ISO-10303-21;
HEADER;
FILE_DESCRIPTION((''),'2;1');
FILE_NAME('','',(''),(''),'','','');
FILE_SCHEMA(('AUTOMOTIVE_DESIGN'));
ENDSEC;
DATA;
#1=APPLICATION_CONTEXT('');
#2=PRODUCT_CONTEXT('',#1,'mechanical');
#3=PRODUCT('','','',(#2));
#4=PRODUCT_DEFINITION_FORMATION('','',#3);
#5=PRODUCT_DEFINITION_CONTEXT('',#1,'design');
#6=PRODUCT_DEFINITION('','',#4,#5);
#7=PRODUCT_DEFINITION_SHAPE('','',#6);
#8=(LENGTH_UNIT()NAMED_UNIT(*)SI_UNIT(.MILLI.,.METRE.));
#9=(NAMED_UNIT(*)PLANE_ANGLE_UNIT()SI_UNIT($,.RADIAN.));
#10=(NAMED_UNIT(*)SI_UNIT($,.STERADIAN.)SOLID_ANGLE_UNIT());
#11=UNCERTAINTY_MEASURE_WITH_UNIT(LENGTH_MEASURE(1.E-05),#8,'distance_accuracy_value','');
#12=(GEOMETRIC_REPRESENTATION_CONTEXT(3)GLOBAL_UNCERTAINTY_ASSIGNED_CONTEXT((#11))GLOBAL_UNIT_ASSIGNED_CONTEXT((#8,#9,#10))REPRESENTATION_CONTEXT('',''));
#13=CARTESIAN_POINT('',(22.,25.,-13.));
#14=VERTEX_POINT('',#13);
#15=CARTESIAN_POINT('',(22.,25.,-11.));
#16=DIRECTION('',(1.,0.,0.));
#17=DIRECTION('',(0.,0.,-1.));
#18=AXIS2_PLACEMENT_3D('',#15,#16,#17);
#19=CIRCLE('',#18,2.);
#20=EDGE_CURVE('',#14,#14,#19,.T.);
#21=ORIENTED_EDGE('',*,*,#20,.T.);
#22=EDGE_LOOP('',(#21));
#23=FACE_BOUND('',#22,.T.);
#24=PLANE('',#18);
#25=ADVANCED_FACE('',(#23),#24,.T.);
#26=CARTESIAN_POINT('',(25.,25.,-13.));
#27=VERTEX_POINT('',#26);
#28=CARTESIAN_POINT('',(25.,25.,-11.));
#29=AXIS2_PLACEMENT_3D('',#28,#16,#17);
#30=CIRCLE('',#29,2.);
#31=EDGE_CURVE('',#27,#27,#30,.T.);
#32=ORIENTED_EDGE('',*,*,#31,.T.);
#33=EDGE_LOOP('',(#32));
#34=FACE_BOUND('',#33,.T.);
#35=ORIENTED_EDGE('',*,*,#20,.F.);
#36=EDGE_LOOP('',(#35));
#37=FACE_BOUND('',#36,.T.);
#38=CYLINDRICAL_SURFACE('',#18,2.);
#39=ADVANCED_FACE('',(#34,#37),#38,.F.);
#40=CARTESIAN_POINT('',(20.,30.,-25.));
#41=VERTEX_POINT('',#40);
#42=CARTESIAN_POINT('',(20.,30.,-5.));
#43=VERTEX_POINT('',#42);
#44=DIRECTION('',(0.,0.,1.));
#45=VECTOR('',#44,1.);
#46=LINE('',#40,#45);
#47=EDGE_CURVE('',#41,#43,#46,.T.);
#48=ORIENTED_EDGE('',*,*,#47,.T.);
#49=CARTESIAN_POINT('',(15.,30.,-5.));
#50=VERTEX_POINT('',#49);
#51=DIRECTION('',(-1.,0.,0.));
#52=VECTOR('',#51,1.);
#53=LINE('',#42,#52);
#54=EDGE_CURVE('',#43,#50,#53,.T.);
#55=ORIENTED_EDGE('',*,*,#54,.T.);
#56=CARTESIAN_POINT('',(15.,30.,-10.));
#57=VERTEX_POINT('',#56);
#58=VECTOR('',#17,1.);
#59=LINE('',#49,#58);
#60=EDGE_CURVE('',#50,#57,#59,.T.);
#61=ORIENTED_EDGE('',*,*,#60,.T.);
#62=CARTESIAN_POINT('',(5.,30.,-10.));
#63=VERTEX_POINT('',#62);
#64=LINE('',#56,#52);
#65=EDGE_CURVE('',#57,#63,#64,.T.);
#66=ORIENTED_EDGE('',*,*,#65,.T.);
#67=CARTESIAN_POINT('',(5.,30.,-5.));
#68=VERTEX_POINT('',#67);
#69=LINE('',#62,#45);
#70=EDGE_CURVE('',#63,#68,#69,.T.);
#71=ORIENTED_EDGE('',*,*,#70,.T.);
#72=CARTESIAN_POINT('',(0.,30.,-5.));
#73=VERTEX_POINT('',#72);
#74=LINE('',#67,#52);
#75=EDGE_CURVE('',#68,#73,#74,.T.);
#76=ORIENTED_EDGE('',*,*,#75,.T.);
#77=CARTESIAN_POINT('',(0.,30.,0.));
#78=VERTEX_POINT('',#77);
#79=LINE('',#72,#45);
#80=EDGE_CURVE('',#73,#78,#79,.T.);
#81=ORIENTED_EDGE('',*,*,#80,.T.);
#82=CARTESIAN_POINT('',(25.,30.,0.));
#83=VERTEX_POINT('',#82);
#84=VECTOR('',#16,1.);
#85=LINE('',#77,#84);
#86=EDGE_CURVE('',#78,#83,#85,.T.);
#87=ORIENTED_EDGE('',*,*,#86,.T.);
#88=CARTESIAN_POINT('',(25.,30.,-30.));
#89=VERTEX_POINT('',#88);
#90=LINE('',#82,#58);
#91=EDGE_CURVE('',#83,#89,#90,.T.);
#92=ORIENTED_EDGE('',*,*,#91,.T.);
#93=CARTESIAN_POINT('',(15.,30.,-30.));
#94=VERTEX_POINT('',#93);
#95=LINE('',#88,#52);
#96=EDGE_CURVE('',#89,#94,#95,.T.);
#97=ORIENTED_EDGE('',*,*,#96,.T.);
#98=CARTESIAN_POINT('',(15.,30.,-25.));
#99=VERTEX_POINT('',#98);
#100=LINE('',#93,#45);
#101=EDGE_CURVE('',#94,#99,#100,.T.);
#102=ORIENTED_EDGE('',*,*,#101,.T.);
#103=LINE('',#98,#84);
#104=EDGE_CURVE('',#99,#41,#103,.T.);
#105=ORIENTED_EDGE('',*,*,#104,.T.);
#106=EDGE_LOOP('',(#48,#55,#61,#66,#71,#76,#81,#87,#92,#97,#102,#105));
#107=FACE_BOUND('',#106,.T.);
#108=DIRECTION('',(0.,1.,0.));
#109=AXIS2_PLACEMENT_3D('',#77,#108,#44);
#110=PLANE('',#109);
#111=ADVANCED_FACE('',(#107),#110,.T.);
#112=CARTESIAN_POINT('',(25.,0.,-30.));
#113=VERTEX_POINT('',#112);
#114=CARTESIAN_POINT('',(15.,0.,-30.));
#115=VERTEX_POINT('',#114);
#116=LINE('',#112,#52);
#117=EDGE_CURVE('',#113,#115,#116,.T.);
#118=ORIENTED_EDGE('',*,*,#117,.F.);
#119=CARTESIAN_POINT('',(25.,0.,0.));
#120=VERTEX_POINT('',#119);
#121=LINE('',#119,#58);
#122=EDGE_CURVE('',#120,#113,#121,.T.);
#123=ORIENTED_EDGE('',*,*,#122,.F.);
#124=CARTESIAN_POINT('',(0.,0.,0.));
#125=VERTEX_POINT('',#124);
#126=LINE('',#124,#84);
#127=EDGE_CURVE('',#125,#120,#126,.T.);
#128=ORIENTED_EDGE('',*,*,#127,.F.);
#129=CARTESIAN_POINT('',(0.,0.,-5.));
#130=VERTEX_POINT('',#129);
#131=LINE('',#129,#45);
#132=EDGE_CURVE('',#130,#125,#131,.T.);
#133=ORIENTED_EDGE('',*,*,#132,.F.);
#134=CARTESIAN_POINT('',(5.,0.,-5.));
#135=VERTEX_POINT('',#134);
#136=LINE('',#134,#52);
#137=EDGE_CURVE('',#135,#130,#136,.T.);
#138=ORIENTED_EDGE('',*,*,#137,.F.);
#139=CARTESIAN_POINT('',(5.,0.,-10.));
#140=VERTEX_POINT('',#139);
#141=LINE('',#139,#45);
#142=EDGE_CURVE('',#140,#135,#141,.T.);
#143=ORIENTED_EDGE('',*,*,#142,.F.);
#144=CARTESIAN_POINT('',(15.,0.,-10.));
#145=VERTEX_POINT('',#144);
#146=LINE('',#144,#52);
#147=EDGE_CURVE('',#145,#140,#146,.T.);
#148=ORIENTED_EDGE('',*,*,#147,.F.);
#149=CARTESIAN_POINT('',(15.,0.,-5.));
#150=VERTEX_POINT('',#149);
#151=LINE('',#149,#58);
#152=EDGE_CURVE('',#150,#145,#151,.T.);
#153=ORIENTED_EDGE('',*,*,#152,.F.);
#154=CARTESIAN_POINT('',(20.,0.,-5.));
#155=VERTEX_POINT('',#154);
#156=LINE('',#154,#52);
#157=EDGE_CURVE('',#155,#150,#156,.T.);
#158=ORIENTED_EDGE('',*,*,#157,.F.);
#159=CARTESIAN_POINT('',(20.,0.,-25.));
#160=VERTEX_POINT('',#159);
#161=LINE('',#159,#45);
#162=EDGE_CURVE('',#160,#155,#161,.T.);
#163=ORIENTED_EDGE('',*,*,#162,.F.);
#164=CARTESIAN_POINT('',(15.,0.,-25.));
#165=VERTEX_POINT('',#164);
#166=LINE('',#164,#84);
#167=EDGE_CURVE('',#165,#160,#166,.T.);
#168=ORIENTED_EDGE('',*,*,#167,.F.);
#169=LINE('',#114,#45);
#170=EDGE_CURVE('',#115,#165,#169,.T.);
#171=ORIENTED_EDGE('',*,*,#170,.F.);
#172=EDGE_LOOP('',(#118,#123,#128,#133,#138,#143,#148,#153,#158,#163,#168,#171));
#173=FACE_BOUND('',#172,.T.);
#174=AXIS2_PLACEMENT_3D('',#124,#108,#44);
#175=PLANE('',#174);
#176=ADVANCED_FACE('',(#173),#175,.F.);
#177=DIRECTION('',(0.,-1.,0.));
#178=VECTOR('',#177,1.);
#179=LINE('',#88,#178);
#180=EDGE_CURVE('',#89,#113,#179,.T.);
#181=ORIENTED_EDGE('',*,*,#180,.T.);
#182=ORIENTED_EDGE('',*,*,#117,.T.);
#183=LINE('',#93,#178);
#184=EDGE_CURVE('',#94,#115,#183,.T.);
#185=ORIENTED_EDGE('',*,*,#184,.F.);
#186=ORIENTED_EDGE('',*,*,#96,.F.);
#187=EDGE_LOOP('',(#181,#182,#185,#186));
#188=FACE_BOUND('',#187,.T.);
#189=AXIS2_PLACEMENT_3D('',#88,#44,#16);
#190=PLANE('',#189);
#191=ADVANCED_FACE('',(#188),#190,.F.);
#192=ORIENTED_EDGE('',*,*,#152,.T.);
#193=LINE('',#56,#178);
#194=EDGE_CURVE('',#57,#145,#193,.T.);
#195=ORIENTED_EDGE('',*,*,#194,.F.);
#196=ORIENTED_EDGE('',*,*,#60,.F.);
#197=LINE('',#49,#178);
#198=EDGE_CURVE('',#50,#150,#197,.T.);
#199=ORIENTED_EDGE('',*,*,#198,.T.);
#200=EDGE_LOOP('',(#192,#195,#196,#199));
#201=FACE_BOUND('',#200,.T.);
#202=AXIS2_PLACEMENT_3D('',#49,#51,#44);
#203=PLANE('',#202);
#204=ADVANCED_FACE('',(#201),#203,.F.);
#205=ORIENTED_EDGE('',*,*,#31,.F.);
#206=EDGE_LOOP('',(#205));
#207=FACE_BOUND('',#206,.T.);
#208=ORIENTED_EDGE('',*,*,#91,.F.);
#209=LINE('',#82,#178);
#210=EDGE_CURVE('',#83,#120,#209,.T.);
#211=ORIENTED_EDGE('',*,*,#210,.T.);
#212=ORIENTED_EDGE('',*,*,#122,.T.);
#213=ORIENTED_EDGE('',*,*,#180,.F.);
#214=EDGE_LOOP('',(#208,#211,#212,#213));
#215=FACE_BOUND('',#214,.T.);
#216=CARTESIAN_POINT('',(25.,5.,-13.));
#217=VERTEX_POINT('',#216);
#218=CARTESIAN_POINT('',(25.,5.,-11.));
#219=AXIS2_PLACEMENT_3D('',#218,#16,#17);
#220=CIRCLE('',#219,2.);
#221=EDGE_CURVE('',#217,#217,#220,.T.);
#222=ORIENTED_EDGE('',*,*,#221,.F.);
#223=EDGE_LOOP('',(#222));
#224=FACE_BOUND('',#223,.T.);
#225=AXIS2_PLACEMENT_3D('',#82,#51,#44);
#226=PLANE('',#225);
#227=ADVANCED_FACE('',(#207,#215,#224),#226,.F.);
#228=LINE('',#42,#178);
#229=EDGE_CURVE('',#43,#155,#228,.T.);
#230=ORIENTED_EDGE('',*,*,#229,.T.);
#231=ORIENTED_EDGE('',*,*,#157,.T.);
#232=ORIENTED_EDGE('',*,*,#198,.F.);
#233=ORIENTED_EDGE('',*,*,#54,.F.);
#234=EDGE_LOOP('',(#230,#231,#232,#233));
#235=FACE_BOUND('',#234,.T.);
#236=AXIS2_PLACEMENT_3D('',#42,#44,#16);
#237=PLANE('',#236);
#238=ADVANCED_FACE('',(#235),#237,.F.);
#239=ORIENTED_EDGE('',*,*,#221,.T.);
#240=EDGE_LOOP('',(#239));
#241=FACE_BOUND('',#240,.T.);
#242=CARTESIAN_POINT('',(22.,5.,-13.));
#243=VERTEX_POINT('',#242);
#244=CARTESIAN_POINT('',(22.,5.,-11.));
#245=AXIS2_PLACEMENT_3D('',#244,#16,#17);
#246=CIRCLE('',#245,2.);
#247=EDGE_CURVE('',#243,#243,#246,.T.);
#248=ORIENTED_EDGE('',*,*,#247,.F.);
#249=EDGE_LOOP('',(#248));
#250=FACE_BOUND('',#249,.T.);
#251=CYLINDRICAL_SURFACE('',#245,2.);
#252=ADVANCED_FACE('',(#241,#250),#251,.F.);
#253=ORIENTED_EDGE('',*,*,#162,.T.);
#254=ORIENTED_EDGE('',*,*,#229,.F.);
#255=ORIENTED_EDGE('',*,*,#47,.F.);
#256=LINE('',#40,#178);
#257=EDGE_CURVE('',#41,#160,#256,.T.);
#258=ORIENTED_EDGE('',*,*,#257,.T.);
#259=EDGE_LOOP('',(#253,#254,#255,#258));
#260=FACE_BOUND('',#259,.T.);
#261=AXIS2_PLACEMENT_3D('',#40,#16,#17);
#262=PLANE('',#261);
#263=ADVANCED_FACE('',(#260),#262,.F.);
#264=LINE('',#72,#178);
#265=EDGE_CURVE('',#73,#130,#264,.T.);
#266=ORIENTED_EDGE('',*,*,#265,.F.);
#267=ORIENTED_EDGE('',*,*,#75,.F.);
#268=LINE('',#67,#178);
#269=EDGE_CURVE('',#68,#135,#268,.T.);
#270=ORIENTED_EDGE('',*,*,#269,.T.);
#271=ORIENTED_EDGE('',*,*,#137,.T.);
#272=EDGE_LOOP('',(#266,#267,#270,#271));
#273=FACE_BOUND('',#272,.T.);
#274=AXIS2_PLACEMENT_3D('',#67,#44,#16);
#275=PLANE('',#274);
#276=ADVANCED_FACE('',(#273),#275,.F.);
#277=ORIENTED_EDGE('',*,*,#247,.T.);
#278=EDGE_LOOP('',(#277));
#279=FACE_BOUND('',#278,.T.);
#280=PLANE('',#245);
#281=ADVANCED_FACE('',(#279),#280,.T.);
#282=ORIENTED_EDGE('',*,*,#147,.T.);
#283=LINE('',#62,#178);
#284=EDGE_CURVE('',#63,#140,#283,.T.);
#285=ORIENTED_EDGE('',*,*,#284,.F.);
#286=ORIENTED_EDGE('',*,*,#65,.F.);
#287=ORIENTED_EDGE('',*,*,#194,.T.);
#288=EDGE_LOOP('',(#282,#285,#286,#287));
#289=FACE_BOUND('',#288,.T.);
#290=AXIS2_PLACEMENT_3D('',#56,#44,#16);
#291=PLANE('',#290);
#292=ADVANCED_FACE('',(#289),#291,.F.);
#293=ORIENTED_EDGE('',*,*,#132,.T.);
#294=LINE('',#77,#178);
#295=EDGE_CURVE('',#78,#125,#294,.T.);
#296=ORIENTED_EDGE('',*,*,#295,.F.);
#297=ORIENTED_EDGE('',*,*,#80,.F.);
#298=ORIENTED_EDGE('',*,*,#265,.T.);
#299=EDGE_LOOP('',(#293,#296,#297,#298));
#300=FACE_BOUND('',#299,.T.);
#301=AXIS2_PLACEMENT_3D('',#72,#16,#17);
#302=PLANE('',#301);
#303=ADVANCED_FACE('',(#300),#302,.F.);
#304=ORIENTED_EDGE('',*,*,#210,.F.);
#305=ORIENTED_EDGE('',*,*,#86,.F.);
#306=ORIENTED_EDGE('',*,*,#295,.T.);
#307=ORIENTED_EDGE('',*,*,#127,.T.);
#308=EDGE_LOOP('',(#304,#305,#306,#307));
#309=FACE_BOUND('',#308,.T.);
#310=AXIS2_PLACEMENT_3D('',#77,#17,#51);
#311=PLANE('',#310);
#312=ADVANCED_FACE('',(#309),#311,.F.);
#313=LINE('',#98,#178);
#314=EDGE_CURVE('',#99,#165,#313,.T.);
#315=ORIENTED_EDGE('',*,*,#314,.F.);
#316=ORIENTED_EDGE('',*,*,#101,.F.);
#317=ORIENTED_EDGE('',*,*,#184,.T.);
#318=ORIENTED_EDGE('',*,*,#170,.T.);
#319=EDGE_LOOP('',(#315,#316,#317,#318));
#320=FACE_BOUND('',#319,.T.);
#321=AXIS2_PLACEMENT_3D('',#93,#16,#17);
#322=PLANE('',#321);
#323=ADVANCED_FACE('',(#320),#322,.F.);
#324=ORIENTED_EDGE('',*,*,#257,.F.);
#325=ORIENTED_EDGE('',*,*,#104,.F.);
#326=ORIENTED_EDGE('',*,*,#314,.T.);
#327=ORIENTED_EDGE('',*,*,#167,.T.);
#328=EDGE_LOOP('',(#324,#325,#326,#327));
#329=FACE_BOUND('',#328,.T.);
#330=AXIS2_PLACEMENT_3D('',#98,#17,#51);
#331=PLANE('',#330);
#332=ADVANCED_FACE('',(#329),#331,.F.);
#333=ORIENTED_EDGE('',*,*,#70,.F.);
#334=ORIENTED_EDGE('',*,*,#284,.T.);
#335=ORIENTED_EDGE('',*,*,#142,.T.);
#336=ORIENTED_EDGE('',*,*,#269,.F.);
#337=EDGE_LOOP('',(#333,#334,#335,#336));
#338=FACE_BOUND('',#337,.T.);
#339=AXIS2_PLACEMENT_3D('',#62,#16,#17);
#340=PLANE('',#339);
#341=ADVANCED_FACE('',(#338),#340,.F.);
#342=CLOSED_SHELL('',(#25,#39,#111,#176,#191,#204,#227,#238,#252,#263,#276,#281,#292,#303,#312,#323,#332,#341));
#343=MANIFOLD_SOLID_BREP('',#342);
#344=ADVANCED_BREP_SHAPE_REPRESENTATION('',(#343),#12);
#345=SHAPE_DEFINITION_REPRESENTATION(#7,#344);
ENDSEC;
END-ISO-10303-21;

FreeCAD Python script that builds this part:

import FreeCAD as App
import Part
import Sketcher

V = App.Vector
Q = App.Units.Quantity


def add_polygon(sketch, points):
    """Adds a closed chain of lines whose ends are joined by coincident constraints."""
    first, n = sketch.GeometryCount, len(points)
    for a, b in zip(points, points[1:] + points[:1]):
        sketch.addGeometry(Part.LineSegment(App.Vector(*a, 0), App.Vector(*b, 0)), False)
    for i in range(n):
        sketch.addConstraint(Sketcher.Constraint("Coincident", first + i, 2, first + (i + 1) % n, 1))

doc = App.newDocument("Part")
body = doc.addObject("PartDesign::Body", "Body")

# Sketch on XZ plane
sketch1 = body.newObject("Sketcher::SketchObject", "Sketch")
sketch1.AttachmentSupport = (doc.getObject("XZ_Plane"), [""])
sketch1.MapMode = "FlatFace"
add_polygon(sketch1, [(0, -5), (0, 0), (25, 0), (25, -30), (15, -30), (15, -25), (20, -25), (20, -5), (15, -5), (15, -10), (5, -10), (5, -5)])  # lines 0-11
sketch1.addConstraint([
    Sketcher.Constraint("Vertical", 0),
    Sketcher.Constraint("Horizontal", 1),
    Sketcher.Constraint("Vertical", 2),
    Sketcher.Constraint("Horizontal", 3),
    Sketcher.Constraint("Vertical", 4),
    Sketcher.Constraint("Horizontal", 5),
    Sketcher.Constraint("Vertical", 6),
    Sketcher.Constraint("Horizontal", 7),
    Sketcher.Constraint("Vertical", 8),
    Sketcher.Constraint("Horizontal", 9),
    Sketcher.Constraint("Vertical", 10),
    Sketcher.Constraint("Horizontal", 11),
    Sketcher.Constraint("Coincident", 0, 2, -1, 1),
    Sketcher.Constraint("Horizontal", 7, 2, 10, 2),
    Sketcher.Constraint("Vertical", 4, 2, 7, 2),
    Sketcher.Constraint("Equal", 3, 9),
    Sketcher.Constraint("Equal", 7, 11),
    Sketcher.Constraint("Equal", 11, 0),
    Sketcher.Constraint("Equal", 0, 4),
    Sketcher.Constraint("Equal", 4, 8),
    Sketcher.Constraint("DistanceX", 1, 1, 1, 2, Q("25 mm")),
    Sketcher.Constraint("DistanceX", 3, 2, 3, 1, Q("10 mm")),
    Sketcher.Constraint("DistanceY", 2, 2, 2, 1, Q("30 mm")),
])
pad1 = body.newObject("PartDesign::Pad", "Pad")
pad1.Profile = sketch1
pad1.Length = 30
pad1.Reversed = True

# Sketch on YZ plane
sketch2 = body.newObject("Sketcher::SketchObject", "Sketch001")
sketch2.AttachmentSupport = (doc.getObject("YZ_Plane"), [""])
sketch2.MapMode = "FlatFace"
sketch2.AttachmentOffset = App.Placement(V(0, 0, 25), App.Rotation())
sketch2.addGeometry([
    Part.Circle(V(25, -11, 0), V(0, 0, 1), 2),
    Part.Circle(V(5, -11, 0), V(0, 0, 1), 2),
], False)
sketch2.addConstraint([
    Sketcher.Constraint("Equal", 0, 1),
    Sketcher.Constraint("Horizontal", 0, 3, 1, 3),
    Sketcher.Constraint("Diameter", 0, Q("4 mm")),
    Sketcher.Constraint("DistanceX", -1, 1, 0, 3, Q("25 mm")),
    Sketcher.Constraint("DistanceY", 0, 3, -1, 1, Q("11 mm")),
    Sketcher.Constraint("DistanceX", -1, 1, 1, 3, Q("5 mm")),
])
pocket1 = body.newObject("PartDesign::Pocket", "Pocket")
pocket1.Profile = sketch2
pocket1.Length = 3

doc.recompute()
